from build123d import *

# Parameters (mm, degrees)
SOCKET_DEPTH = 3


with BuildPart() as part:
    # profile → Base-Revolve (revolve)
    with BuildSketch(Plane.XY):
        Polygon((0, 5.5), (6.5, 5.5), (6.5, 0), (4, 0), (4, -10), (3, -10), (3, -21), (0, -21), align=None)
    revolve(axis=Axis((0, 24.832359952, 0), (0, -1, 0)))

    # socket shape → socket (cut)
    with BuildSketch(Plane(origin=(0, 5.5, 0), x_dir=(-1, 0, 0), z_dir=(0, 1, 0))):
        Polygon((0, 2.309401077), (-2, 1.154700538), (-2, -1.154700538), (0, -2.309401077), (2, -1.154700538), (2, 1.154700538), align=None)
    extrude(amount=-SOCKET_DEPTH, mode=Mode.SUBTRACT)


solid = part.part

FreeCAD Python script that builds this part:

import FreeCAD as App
import Part
import Sketcher
from FreeCAD import Vector
Q = App.Units.Quantity

doc = App.newDocument("Part")
body = doc.addObject("PartDesign::Body", "Body")

sketch1 = doc.addObject("Sketcher::SketchObject", "Sketch")
body.addObject(sketch1)
sketch1.AttachmentSupport = (doc.XY_Plane, [""])
sketch1.MapMode = "FlatFace"
sketch1.addGeometry(Part.LineSegment(Vector(6.5, 5.5, 0), Vector(0, 5.5, 0)), False)
sketch1.addGeometry(Part.LineSegment(Vector(0, 5.5, 0), Vector(0, -21, 0)), False)
sketch1.addGeometry(Part.LineSegment(Vector(0, -21, 0), Vector(3, -21, 0)), False)
sketch1.addGeometry(Part.LineSegment(Vector(3, -21, 0), Vector(3, -10, 0)), False)
sketch1.addGeometry(Part.LineSegment(Vector(3, -10, 0), Vector(4, -10, 0)), False)
sketch1.addGeometry(Part.LineSegment(Vector(4, -10, 0), Vector(4, 0, 0)), False)
sketch1.addGeometry(Part.LineSegment(Vector(4, 0, 0), Vector(6.5, 0, 0)), False)
sketch1.addGeometry(Part.LineSegment(Vector(6.5, 0, 0), Vector(6.5, 5.5, 0)), False)
sketch1.addConstraint(Sketcher.Constraint("Coincident", 0, 2, 1, 1))
sketch1.addConstraint(Sketcher.Constraint("Coincident", 1, 2, 2, 1))
sketch1.addConstraint(Sketcher.Constraint("Coincident", 2, 2, 3, 1))
sketch1.addConstraint(Sketcher.Constraint("Coincident", 3, 2, 4, 1))
sketch1.addConstraint(Sketcher.Constraint("Coincident", 4, 2, 5, 1))
sketch1.addConstraint(Sketcher.Constraint("Coincident", 5, 2, 6, 1))
sketch1.addConstraint(Sketcher.Constraint("Coincident", 6, 2, 7, 1))
sketch1.addConstraint(Sketcher.Constraint("Coincident", 7, 2, 0, 1))
sketch1.addConstraint(Sketcher.Constraint("Horizontal", 0))
sketch1.addConstraint(Sketcher.Constraint("Vertical", 1))
sketch1.addConstraint(Sketcher.Constraint("Horizontal", 2))
sketch1.addConstraint(Sketcher.Constraint("Vertical", 3))
sketch1.addConstraint(Sketcher.Constraint("Horizontal", 4))
sketch1.addConstraint(Sketcher.Constraint("Vertical", 5))
sketch1.addConstraint(Sketcher.Constraint("Horizontal", 6))
sketch1.addConstraint(Sketcher.Constraint("Vertical", 7))
sketch1.addConstraint(Sketcher.Constraint("PointOnObject", 0, 2, -2))
sketch1.addConstraint(Sketcher.Constraint("PointOnObject", 5, 2, -1))
sketch1.addConstraint(Sketcher.Constraint("DistanceX", 2, 1, 2, 2, Q("3 mm")))
sketch1.addConstraint(Sketcher.Constraint("DistanceX", 4, 1, 4, 2, Q("1 mm")))
sketch1.addConstraint(Sketcher.Constraint("DistanceY", 3, 1, 3, 2, Q("11 mm")))
sketch1.addConstraint(Sketcher.Constraint("DistanceY", 5, 1, 5, 2, Q("10 mm")))
sketch1.addConstraint(Sketcher.Constraint("DistanceX", 0, 2, 0, 1, Q("6.5 mm")))
sketch1.addConstraint(Sketcher.Constraint("DistanceY", 1, 2, 1, 1, Q("26.5 mm")))
revolution = doc.addObject("PartDesign::Revolution", "Revolution")
body.addObject(revolution)
revolution.Profile = sketch1
revolution.ReferenceAxis = (sketch1, ["V_Axis"])
revolution.Angle = 360

sketch2 = doc.addObject("Sketcher::SketchObject", "Sketch001")
body.addObject(sketch2)
sketch2.AttachmentSupport = (doc.XZ_Plane, [""])
sketch2.MapMode = "FlatFace"
sketch2.AttachmentOffset = App.Placement(Vector(0, 0, -5.5), App.Rotation())
sketch2.addGeometry(Part.LineSegment(Vector(0, 2.3, 0), Vector(2, 1.2, 0)), False)
sketch2.addGeometry(Part.LineSegment(Vector(2, 1.2, 0), Vector(2, -1.2, 0)), False)
sketch2.addGeometry(Part.LineSegment(Vector(2, -1.2, 0), Vector(0, -2.3, 0)), False)
sketch2.addGeometry(Part.LineSegment(Vector(0, -2.3, 0), Vector(-2, -1.2, 0)), False)
sketch2.addGeometry(Part.LineSegment(Vector(-2, -1.2, 0), Vector(-2, 1.2, 0)), False)
sketch2.addGeometry(Part.LineSegment(Vector(-2, 1.2, 0), Vector(0, 2.3, 0)), False)
sketch2.addConstraint(Sketcher.Constraint("Coincident", 0, 2, 1, 1))
sketch2.addConstraint(Sketcher.Constraint("Coincident", 1, 2, 2, 1))
sketch2.addConstraint(Sketcher.Constraint("Coincident", 2, 2, 3, 1))
sketch2.addConstraint(Sketcher.Constraint("Coincident", 3, 2, 4, 1))
sketch2.addConstraint(Sketcher.Constraint("Coincident", 4, 2, 5, 1))
sketch2.addConstraint(Sketcher.Constraint("Coincident", 5, 2, 0, 1))
sketch2.addConstraint(Sketcher.Constraint("Vertical", 1))
sketch2.addConstraint(Sketcher.Constraint("Vertical", 4))
sketch2.addConstraint(Sketcher.Constraint("Symmetric", 0, 2, 3, 2, -1, 1))
sketch2.addConstraint(Sketcher.Constraint("Symmetric", 2, 2, 5, 2, -1, 1))
sketch2.addConstraint(Sketcher.Constraint("PointOnObject", 2, 2, -2))
sketch2.addConstraint(Sketcher.Constraint("Parallel", 2, 5))
sketch2.addConstraint(Sketcher.Constraint("Horizontal", 1, 2, 3, 2))
sketch2.addConstraint(Sketcher.Constraint("Angle", 0, Q("-30 deg")))
sketch2.addConstraint(Sketcher.Constraint("DistanceX", -1, 1, 0, 2, Q("2 mm")))
sketch2.addConstraint(Sketcher.Constraint("DistanceY", 1, 2, 1, 1, Q("2.309401 mm")))
pocket1 = doc.addObject("PartDesign::Pocket", "Pocket")
body.addObject(pocket1)
pocket1.Profile = sketch2
pocket1.Length = 3
pocket1.Reversed = True

doc.recompute()
